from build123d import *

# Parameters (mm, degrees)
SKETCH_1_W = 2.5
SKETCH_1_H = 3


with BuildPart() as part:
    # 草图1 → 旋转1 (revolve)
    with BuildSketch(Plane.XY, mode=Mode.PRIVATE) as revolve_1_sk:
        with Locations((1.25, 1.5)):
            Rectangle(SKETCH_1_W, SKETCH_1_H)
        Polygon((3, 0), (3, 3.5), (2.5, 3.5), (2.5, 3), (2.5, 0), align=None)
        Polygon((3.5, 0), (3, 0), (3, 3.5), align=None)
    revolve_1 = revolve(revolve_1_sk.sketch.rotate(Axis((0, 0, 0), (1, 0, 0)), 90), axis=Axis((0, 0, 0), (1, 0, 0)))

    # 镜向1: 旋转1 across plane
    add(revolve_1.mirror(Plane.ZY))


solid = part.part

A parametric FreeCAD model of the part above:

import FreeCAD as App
import Part
import Sketcher

V = App.Vector
Q = App.Units.Quantity

doc = App.newDocument("Part")
body = doc.addObject("PartDesign::Body", "Body")

# Sketch on XY plane
sketch1 = body.newObject("Sketcher::SketchObject", "Sketch")
sketch1.AttachmentSupport = (doc.getObject("XY_Plane"), [""])
sketch1.MapMode = "FlatFace"
sketch1.addGeometry(Part.LineSegment(V(0, 3, 0), V(0, 0, 0)), False)
sketch1.addGeometry(Part.LineSegment(V(0, 0, 0), V(3.5, 0, 0)), False)
sketch1.addGeometry(Part.LineSegment(V(3.5, 0, 0), V(3, 3.5, 0)), False)
sketch1.addGeometry(Part.LineSegment(V(3, 3.5, 0), V(2.5, 3.5, 0)), False)
sketch1.addGeometry(Part.LineSegment(V(2.5, 3.5, 0), V(2.5, 3, 0)), False)
sketch1.addGeometry(Part.LineSegment(V(2.5, 3, 0), V(0, 3, 0)), False)
sketch1.addConstraint(Sketcher.Constraint("Coincident", 0, 2, 1, 1))
sketch1.addConstraint(Sketcher.Constraint("Coincident", 1, 2, 2, 1))
sketch1.addConstraint(Sketcher.Constraint("Coincident", 2, 2, 3, 1))
sketch1.addConstraint(Sketcher.Constraint("Coincident", 3, 2, 4, 1))
sketch1.addConstraint(Sketcher.Constraint("Coincident", 4, 2, 5, 1))
sketch1.addConstraint(Sketcher.Constraint("Coincident", 5, 2, 0, 1))
sketch1.addConstraint(Sketcher.Constraint("Vertical", 0))
sketch1.addConstraint(Sketcher.Constraint("Horizontal", 1))
sketch1.addConstraint(Sketcher.Constraint("Horizontal", 3))
sketch1.addConstraint(Sketcher.Constraint("Vertical", 4))
sketch1.addConstraint(Sketcher.Constraint("Horizontal", 5))
sketch1.addConstraint(Sketcher.Constraint("Coincident", 0, 2, -1, 1))
sketch1.addConstraint(Sketcher.Constraint("Equal", 3, 4))
sketch1.addConstraint(Sketcher.Constraint("DistanceY", 0, 2, 0, 1, Q("3 mm")))
sketch1.addConstraint(Sketcher.Constraint("DistanceX", 1, 1, 1, 2, Q("3.5 mm")))
sketch1.addConstraint(Sketcher.Constraint("DistanceX", 3, 2, 3, 1, Q("0.5 mm")))
sketch1.addConstraint(Sketcher.Constraint("DistanceX", 5, 2, 5, 1, Q("2.5 mm")))
revolution = body.newObject("PartDesign::Revolution", "Revolution")
revolution.Profile = sketch1
revolution.ReferenceAxis = (sketch1, ["H_Axis"])
revolution.Angle = 360
doc.recompute()

mirrored = body.newObject("PartDesign::Mirrored", "Mirrored")
mirrored.Originals = [revolution]
mirrored.MirrorPlane = (doc.getObject("YZ_Plane"), [""])
body.Tip = mirrored

doc.recompute()
